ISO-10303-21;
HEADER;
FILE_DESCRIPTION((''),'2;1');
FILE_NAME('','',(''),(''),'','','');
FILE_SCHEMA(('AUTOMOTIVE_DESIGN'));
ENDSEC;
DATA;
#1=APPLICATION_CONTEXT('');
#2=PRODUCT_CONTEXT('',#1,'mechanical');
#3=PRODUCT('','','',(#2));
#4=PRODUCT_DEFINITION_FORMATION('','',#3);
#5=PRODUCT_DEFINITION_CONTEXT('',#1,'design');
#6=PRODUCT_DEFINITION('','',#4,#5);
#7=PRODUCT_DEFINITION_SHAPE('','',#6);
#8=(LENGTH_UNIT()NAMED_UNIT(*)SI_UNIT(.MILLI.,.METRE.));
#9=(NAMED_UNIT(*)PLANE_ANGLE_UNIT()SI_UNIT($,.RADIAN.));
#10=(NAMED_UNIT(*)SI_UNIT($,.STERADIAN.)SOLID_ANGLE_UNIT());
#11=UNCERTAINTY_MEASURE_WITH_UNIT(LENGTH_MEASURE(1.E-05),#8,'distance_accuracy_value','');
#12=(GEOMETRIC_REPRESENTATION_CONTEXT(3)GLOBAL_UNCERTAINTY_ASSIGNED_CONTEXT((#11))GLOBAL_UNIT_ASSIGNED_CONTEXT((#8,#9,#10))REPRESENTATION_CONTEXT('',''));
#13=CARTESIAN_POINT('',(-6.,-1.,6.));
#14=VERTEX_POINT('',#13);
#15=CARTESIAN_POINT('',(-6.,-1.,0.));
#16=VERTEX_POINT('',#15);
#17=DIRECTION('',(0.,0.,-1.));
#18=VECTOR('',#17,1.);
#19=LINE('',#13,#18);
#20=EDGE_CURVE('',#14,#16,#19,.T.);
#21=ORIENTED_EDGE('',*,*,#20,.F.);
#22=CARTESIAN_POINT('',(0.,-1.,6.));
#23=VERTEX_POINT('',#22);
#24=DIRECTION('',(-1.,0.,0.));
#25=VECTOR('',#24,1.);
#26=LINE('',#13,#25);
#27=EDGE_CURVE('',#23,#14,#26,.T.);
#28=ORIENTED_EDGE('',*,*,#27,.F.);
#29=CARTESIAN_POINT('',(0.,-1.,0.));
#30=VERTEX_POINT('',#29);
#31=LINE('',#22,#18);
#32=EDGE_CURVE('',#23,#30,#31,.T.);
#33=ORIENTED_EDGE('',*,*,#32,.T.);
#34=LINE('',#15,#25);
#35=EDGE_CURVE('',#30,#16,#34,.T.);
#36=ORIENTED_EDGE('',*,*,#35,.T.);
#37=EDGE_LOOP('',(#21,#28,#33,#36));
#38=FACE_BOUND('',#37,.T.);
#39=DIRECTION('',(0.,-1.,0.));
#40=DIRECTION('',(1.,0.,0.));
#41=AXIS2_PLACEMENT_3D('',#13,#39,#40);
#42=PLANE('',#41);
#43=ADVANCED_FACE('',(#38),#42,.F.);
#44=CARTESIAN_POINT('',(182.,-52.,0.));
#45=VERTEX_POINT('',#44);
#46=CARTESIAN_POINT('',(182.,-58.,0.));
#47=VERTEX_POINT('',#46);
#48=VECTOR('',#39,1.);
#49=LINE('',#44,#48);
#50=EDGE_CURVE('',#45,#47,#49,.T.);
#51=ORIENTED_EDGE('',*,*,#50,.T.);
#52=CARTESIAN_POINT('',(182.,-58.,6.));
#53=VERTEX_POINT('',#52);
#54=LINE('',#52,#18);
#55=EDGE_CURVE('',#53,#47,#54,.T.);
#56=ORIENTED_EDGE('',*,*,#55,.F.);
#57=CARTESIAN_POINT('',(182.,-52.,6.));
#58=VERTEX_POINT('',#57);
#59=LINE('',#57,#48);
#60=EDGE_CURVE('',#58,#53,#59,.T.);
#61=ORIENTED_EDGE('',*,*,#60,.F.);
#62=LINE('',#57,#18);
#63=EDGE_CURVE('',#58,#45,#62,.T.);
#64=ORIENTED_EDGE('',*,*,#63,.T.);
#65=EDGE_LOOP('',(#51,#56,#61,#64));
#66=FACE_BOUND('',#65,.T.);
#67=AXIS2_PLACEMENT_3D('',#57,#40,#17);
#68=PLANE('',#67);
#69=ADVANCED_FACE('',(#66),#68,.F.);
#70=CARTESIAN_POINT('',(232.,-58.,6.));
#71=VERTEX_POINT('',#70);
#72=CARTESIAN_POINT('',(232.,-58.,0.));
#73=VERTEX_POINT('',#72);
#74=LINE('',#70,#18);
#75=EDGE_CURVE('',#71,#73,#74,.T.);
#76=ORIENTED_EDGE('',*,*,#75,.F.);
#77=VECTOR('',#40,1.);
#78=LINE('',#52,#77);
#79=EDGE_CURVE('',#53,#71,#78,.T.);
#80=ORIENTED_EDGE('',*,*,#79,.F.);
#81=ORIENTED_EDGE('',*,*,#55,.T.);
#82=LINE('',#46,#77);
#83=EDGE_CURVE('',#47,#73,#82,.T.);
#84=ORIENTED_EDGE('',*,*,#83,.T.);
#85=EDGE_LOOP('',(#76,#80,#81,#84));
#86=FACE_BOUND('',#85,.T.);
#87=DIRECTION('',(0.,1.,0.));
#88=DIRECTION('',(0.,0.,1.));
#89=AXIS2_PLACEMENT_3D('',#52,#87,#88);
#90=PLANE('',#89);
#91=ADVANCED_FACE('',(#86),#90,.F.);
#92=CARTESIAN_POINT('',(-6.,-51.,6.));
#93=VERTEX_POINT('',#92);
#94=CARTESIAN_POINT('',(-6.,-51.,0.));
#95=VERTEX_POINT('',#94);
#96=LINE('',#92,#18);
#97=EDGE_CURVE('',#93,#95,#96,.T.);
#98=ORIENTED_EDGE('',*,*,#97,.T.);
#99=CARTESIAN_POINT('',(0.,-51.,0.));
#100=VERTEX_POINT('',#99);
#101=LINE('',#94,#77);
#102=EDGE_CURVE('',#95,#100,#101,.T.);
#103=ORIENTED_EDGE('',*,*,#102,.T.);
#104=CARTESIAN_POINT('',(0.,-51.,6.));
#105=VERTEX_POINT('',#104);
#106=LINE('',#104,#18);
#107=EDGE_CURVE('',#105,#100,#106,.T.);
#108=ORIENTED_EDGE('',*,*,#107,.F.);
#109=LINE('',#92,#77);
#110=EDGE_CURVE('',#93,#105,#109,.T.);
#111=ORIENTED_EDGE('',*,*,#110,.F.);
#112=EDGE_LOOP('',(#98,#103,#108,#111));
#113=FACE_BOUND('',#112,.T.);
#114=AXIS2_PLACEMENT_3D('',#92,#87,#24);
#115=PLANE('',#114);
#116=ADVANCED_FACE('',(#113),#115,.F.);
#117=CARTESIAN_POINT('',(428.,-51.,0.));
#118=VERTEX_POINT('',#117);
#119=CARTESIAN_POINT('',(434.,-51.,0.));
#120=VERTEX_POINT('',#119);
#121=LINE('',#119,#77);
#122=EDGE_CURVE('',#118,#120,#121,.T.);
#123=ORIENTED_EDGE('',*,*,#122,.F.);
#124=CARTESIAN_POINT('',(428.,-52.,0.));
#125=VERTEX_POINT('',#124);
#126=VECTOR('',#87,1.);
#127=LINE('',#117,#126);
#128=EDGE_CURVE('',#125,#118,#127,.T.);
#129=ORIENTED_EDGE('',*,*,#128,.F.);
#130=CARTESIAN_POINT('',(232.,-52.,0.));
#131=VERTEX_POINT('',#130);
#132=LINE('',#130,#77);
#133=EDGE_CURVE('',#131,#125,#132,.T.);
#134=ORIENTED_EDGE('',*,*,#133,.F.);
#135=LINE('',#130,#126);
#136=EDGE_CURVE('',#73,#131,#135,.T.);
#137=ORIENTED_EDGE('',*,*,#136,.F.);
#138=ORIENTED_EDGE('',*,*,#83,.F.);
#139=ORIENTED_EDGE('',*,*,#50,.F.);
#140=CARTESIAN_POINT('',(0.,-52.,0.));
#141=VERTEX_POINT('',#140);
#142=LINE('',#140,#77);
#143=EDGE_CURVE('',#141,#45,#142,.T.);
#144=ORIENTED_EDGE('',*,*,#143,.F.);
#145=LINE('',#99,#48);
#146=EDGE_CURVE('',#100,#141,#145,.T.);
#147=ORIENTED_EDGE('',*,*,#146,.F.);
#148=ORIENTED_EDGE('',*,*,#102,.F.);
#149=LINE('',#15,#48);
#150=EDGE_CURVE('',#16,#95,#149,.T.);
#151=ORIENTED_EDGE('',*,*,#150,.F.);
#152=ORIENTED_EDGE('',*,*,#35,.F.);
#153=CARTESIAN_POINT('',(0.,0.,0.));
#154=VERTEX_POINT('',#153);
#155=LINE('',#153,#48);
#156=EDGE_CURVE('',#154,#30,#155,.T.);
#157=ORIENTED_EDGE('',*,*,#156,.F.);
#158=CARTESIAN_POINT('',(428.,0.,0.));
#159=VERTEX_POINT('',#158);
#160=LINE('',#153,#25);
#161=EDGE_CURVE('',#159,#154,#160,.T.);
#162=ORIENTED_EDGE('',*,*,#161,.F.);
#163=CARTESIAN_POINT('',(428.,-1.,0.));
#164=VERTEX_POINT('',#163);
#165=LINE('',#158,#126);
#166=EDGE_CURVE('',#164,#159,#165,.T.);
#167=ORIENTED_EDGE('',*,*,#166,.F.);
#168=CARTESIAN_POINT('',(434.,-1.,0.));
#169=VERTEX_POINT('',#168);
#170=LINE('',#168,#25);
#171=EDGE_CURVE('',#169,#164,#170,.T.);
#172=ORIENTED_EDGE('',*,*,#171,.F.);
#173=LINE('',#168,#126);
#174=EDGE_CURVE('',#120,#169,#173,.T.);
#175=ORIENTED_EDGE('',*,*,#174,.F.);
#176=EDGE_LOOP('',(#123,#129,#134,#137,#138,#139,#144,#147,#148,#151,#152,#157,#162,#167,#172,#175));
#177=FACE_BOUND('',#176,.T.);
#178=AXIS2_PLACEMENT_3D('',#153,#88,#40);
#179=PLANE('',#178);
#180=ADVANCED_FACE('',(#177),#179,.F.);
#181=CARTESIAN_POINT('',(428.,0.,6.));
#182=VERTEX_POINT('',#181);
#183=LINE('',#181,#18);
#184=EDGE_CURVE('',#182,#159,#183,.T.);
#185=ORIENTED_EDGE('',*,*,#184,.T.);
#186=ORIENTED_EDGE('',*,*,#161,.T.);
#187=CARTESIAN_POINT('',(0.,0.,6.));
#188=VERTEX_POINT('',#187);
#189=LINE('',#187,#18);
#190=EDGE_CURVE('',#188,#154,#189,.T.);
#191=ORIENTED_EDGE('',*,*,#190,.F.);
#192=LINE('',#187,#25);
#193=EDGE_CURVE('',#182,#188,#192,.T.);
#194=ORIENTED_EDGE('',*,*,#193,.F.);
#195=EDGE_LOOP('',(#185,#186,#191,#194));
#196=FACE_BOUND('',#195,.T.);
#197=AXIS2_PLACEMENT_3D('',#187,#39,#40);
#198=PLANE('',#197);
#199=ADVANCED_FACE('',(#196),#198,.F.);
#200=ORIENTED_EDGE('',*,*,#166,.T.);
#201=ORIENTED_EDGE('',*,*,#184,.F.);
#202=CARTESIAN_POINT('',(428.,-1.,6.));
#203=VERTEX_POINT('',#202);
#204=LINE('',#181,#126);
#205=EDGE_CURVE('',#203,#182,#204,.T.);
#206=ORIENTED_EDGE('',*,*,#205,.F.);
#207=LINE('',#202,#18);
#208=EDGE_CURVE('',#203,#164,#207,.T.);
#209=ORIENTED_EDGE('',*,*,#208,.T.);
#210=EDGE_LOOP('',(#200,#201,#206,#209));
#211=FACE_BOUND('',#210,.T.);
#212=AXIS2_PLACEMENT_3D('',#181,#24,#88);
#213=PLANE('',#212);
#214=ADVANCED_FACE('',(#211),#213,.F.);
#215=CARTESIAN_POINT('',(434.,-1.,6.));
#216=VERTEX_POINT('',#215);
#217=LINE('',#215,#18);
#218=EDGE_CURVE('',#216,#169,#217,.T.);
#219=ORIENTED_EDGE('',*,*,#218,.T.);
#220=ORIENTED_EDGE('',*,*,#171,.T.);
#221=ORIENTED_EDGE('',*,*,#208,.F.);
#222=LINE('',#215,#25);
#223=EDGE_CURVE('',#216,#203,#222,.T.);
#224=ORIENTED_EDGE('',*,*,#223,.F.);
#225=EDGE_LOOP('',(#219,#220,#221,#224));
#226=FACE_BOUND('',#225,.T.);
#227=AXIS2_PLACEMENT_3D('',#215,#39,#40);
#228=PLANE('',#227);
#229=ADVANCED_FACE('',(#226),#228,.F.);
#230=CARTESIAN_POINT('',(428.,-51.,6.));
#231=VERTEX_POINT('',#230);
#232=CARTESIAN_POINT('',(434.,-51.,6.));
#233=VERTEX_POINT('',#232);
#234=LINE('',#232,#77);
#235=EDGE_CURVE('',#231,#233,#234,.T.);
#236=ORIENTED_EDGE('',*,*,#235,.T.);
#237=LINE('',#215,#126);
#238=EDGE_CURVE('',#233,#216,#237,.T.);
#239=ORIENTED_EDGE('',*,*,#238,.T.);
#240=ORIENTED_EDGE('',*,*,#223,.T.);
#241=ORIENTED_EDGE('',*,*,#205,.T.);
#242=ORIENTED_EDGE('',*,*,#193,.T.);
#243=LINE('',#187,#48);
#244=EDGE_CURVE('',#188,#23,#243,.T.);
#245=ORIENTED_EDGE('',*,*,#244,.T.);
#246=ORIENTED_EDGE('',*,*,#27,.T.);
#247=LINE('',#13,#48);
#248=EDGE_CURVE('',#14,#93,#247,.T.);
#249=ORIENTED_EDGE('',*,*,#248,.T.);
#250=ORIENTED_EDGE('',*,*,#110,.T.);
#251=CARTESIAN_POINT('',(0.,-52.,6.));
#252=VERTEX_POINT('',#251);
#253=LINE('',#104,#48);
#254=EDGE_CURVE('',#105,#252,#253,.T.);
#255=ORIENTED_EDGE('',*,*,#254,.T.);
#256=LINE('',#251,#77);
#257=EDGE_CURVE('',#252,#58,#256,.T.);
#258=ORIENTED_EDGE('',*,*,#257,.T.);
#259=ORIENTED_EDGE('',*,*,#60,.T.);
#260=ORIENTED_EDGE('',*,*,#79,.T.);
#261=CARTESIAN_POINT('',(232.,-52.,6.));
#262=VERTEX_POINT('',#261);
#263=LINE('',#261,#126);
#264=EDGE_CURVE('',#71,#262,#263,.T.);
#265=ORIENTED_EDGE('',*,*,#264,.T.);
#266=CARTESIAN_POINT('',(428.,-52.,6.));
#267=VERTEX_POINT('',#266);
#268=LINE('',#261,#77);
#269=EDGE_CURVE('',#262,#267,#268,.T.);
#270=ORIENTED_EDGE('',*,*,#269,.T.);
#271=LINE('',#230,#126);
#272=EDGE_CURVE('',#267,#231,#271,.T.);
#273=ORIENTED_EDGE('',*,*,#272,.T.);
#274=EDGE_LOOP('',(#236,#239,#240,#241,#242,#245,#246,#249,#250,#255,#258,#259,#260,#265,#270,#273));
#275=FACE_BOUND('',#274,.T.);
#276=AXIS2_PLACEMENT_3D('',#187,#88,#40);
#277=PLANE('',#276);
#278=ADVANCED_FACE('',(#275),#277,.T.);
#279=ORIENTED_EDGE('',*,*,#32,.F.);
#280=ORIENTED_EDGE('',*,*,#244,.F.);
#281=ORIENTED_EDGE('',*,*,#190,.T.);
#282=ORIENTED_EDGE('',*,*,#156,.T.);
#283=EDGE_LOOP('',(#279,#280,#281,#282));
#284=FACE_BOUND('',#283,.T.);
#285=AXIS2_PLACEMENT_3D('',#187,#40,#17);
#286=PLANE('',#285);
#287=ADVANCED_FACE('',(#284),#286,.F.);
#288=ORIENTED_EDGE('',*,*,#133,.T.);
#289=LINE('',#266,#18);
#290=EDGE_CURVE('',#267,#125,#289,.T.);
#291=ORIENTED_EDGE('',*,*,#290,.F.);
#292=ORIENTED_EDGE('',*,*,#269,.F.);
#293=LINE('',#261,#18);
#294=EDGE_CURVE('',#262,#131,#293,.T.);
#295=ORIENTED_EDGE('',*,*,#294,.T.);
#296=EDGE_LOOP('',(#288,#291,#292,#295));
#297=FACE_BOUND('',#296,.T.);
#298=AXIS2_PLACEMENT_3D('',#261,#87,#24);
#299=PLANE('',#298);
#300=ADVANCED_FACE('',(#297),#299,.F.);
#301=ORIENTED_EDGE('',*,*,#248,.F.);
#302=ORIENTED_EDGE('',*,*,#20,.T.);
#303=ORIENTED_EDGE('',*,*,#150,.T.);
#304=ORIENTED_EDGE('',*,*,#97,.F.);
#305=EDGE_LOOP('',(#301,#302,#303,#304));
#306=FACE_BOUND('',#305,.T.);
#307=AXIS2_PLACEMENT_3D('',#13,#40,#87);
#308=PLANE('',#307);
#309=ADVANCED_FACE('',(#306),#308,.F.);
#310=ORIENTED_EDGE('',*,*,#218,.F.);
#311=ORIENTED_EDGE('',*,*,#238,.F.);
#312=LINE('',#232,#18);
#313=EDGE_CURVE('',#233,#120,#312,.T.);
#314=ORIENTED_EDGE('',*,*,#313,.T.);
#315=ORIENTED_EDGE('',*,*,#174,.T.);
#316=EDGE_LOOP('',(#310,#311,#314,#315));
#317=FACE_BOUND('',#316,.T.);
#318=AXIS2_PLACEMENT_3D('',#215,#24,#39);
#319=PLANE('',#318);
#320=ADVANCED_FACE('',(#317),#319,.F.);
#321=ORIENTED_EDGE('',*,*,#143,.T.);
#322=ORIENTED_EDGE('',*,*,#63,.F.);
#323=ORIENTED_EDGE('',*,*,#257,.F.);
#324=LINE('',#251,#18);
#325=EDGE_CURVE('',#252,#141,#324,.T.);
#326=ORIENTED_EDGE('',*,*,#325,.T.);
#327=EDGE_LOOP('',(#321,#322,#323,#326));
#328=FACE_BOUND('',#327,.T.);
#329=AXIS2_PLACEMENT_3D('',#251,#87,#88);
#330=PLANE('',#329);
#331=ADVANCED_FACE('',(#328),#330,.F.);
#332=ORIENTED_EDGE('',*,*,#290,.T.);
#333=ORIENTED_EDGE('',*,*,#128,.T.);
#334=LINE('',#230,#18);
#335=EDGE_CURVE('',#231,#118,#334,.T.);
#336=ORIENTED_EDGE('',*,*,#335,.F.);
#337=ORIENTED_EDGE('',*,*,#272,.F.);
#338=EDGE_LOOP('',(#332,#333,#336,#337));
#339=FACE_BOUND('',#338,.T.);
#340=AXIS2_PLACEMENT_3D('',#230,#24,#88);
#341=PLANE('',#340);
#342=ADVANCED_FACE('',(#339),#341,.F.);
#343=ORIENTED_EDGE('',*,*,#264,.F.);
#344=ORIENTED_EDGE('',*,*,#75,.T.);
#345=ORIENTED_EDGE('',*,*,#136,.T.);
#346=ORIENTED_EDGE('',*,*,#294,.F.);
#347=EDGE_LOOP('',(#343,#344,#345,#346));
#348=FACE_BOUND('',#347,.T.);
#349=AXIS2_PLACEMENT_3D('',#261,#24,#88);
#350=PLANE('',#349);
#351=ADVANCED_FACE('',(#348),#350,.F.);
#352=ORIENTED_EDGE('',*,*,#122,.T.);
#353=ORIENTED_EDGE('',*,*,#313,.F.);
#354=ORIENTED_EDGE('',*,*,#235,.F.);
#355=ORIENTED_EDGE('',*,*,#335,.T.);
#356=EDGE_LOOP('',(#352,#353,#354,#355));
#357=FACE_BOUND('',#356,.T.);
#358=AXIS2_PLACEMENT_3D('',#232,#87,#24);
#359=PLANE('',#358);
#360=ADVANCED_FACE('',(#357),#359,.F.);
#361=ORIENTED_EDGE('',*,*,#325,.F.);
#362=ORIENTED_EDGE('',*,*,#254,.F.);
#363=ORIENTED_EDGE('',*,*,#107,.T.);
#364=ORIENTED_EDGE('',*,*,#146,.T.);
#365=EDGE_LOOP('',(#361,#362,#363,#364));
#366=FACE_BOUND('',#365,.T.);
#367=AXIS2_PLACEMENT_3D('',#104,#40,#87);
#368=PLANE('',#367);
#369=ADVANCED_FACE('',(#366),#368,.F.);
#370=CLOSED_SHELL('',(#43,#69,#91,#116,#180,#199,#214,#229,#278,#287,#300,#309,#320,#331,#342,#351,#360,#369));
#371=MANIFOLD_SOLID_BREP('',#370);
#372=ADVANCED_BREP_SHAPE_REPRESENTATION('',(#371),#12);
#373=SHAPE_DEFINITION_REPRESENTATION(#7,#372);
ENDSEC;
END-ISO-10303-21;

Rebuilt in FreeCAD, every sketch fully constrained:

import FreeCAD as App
import Part
import Sketcher

V = App.Vector


def add_polygon(sketch, points):
    """Adds a closed chain of lines whose ends are joined by coincident constraints."""
    first, n = sketch.GeometryCount, len(points)
    for a, b in zip(points, points[1:] + points[:1]):
        sketch.addGeometry(Part.LineSegment(App.Vector(*a, 0), App.Vector(*b, 0)), False)
    for i in range(n):
        sketch.addConstraint(Sketcher.Constraint("Coincident", first + i, 2, first + (i + 1) % n, 1))

doc = App.newDocument("Part")
body = doc.addObject("PartDesign::Body", "Body")

# Sketch on XY plane
sketch1 = body.newObject("Sketcher::SketchObject", "Sketch")
sketch1.AttachmentSupport = (doc.getObject("XY_Plane"), [""])
sketch1.MapMode = "FlatFace"
add_polygon(sketch1, [(428, 0), (0, 0), (0, -1), (-6, -1), (-6, -51), (0, -51), (0, -52), (182, -52), (182, -58), (232, -58), (232, -52), (428, -52), (428, -51), (434, -51), (434, -1), (428, -1)])  # lines 0-15
sketch1.addConstraint(Sketcher.Constraint("Horizontal", 0))
sketch1.addConstraint(Sketcher.Constraint("Vertical", 1))
sketch1.addConstraint(Sketcher.Constraint("Horizontal", 2))
sketch1.addConstraint(Sketcher.Constraint("Vertical", 3))
sketch1.addConstraint(Sketcher.Constraint("Horizontal", 4))
sketch1.addConstraint(Sketcher.Constraint("Vertical", 5))
sketch1.addConstraint(Sketcher.Constraint("Horizontal", 6))
sketch1.addConstraint(Sketcher.Constraint("Vertical", 7))
sketch1.addConstraint(Sketcher.Constraint("Horizontal", 8))
sketch1.addConstraint(Sketcher.Constraint("Vertical", 9))
sketch1.addConstraint(Sketcher.Constraint("Horizontal", 10))
sketch1.addConstraint(Sketcher.Constraint("Vertical", 11))
sketch1.addConstraint(Sketcher.Constraint("Horizontal", 12))
sketch1.addConstraint(Sketcher.Constraint("Vertical", 13))
sketch1.addConstraint(Sketcher.Constraint("Horizontal", 14))
sketch1.addConstraint(Sketcher.Constraint("Vertical", 15))
sketch1.addConstraint(Sketcher.Constraint("Coincident", 0, 2, -1, 1))
sketch1.addConstraint(Sketcher.Constraint("PointOnObject", 4, 2, -2))
sketch1.addConstraint(Sketcher.Constraint("Horizontal", 6, 2, 9, 2))
sketch1.addConstraint(Sketcher.Constraint("Horizontal", 4, 2, 11, 2))
sketch1.addConstraint(Sketcher.Constraint("Horizontal", 2, 2, 13, 2))
sketch1.addConstraint(Sketcher.Constraint("Vertical", 11, 2, 14, 2))
sketch1.addConstraint(Sketcher.Constraint("Equal", 4, 12))
sketch1.addConstraint(Sketcher.Constraint("Equal", 8, 3))
sketch1.addConstraint(Sketcher.Constraint("Equal", 1, 5))
sketch1.addConstraint(Sketcher.Constraint("Equal", 14, 7))
sketch1.addConstraint(Sketcher.Constraint("DistanceX", 0, 2, 0, 1, 428.0))
sketch1.addConstraint(Sketcher.Constraint("DistanceX", 2, 2, 2, 1, 6.0))
sketch1.addConstraint(Sketcher.Constraint("DistanceX", 6, 1, 6, 2, 182.0))
sketch1.addConstraint(Sketcher.Constraint("DistanceX", 8, 1, 8, 2, 50.0))
sketch1.addConstraint(Sketcher.Constraint("DistanceY", 1, 2, 1, 1, 1.0))
pad1 = body.newObject("PartDesign::Pad", "Pad")
pad1.Profile = sketch1
pad1.Length = 6

doc.recompute()
